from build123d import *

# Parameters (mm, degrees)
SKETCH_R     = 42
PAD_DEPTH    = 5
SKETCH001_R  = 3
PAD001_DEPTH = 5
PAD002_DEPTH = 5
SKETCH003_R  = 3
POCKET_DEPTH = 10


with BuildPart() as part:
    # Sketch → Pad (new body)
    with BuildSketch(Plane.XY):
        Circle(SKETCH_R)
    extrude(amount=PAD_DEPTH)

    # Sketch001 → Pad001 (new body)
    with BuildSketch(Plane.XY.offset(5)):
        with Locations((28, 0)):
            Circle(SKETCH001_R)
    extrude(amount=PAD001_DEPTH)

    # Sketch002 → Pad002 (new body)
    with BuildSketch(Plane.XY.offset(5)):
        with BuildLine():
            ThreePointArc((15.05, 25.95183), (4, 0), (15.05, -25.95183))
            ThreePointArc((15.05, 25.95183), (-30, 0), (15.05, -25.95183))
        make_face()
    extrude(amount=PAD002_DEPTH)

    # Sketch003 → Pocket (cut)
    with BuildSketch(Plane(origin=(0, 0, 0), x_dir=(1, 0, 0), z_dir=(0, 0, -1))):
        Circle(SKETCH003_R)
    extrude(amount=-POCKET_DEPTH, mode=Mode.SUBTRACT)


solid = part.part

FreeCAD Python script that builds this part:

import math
import FreeCAD as App
import Part
import Sketcher

doc = App.newDocument("Part")
params = doc.addObject("Spreadsheet::Sheet", "Params")
for row, (alias, value) in enumerate([
    ("sketch1_diameter", "84 mm"),
    ("pad1_length", "5 mm"),
    ("sketch2_diameter", "6 mm"),
    ("pad2_length", "5 mm"),
    ("sketch3_radius", "35.999999 mm"),
    ("sketch3_radius2", "30 mm"),
    ("pad3_length", "5 mm"),
    ("sketch4_diameter", "6 mm"),
    ("pocket1_length", "10 mm"),
], start=1):
    params.set(f"A{row}", alias)
    params.set(f"B{row}", "=" + value)
    params.setAlias(f"B{row}", alias)

body = doc.addObject("PartDesign::Body", "Body")

# Sketch on XY plane
sketch1 = body.newObject("Sketcher::SketchObject", "Sketch")
sketch1.AttachmentSupport = (doc.getObject("XY_Plane"), [""])
sketch1.MapMode = "FlatFace"
sketch1.addGeometry(Part.Circle(App.Vector(0, 0, 0), App.Vector(0, 0, 1), 42), False)
sketch1.addConstraint(Sketcher.Constraint("Coincident", 0, 3, -1, 1))
sketch1.addConstraint(Sketcher.Constraint("Diameter", 0, 84.0))
sketch1.setExpression("Constraints[1]", "Params.sketch1_diameter")
pad1 = body.newObject("PartDesign::Pad", "Pad")
pad1.Profile = sketch1
pad1.setExpression("Length", "Params.pad1_length")

# Sketch on XY plane
sketch2 = body.newObject("Sketcher::SketchObject", "Sketch001")
sketch2.AttachmentSupport = (doc.getObject("XY_Plane"), [""])
sketch2.MapMode = "FlatFace"
sketch2.AttachmentOffset = App.Placement(App.Vector(0, 0, 5), App.Rotation())
sketch2.addGeometry(Part.Circle(App.Vector(28, 0, 0), App.Vector(0, 0, 1), 3), False)
sketch2.addConstraint(Sketcher.Constraint("PointOnObject", 0, 3, -1))
sketch2.addConstraint(Sketcher.Constraint("Diameter", 0, 6.0))
sketch2.addConstraint(Sketcher.Constraint("DistanceX", -1, 1, 0, 3, 28.0))
sketch2.setExpression("Constraints[1]", "Params.sketch2_diameter")
pad2 = body.newObject("PartDesign::Pad", "Pad001")
pad2.Profile = sketch2
pad2.setExpression("Length", "Params.pad2_length")

# Sketch on XY plane
sketch3 = body.newObject("Sketcher::SketchObject", "Sketch002")
sketch3.AttachmentSupport = (doc.getObject("XY_Plane"), [""])
sketch3.MapMode = "FlatFace"
sketch3.AttachmentOffset = App.Placement(App.Vector(0, 0, 5), App.Rotation())
sketch3.addGeometry(Part.ArcOfCircle(Part.Circle(App.Vector(40, 0, 0), App.Vector(0, 0, 1), 36), math.radians(134), math.radians(226)), False)
sketch3.addGeometry(Part.ArcOfCircle(Part.Circle(App.Vector(0, 0, 0), App.Vector(0, 0, 1), 30), math.radians(60), math.radians(300)), False)
sketch3.addConstraint(Sketcher.Constraint("Coincident", 0, 1, 1, 1))
sketch3.addConstraint(Sketcher.Constraint("Coincident", 1, 2, 0, 2))
sketch3.addConstraint(Sketcher.Constraint("Coincident", 1, 3, -1, 1))
sketch3.addConstraint(Sketcher.Constraint("PointOnObject", 0, 3, -1))
sketch3.addConstraint(Sketcher.Constraint("Radius", 0, 35.999999))
sketch3.addConstraint(Sketcher.Constraint("Radius", 1, 30.0))
sketch3.addConstraint(Sketcher.Constraint("DistanceX", -1, 1, 0, 3, 39.999999))
sketch3.setExpression("Constraints[4]", "Params.sketch3_radius")
sketch3.setExpression("Constraints[5]", "Params.sketch3_radius2")
pad3 = body.newObject("PartDesign::Pad", "Pad002")
pad3.Profile = sketch3
pad3.setExpression("Length", "Params.pad3_length")

# Sketch on XY plane
sketch4 = body.newObject("Sketcher::SketchObject", "Sketch003")
sketch4.AttachmentSupport = (doc.getObject("XY_Plane"), [""])
sketch4.MapMode = "FlatFace"
sketch4.addGeometry(Part.Circle(App.Vector(0, 0, 0), App.Vector(0, 0, 1), 3), False)
sketch4.addConstraint(Sketcher.Constraint("Coincident", 0, 3, -1, 1))
sketch4.addConstraint(Sketcher.Constraint("Diameter", 0, 6.0))
sketch4.setExpression("Constraints[1]", "Params.sketch4_diameter")
pocket1 = body.newObject("PartDesign::Pocket", "Pocket")
pocket1.Profile = sketch4
pocket1.setExpression("Length", "Params.pocket1_length")
pocket1.Reversed = True

doc.recompute()
